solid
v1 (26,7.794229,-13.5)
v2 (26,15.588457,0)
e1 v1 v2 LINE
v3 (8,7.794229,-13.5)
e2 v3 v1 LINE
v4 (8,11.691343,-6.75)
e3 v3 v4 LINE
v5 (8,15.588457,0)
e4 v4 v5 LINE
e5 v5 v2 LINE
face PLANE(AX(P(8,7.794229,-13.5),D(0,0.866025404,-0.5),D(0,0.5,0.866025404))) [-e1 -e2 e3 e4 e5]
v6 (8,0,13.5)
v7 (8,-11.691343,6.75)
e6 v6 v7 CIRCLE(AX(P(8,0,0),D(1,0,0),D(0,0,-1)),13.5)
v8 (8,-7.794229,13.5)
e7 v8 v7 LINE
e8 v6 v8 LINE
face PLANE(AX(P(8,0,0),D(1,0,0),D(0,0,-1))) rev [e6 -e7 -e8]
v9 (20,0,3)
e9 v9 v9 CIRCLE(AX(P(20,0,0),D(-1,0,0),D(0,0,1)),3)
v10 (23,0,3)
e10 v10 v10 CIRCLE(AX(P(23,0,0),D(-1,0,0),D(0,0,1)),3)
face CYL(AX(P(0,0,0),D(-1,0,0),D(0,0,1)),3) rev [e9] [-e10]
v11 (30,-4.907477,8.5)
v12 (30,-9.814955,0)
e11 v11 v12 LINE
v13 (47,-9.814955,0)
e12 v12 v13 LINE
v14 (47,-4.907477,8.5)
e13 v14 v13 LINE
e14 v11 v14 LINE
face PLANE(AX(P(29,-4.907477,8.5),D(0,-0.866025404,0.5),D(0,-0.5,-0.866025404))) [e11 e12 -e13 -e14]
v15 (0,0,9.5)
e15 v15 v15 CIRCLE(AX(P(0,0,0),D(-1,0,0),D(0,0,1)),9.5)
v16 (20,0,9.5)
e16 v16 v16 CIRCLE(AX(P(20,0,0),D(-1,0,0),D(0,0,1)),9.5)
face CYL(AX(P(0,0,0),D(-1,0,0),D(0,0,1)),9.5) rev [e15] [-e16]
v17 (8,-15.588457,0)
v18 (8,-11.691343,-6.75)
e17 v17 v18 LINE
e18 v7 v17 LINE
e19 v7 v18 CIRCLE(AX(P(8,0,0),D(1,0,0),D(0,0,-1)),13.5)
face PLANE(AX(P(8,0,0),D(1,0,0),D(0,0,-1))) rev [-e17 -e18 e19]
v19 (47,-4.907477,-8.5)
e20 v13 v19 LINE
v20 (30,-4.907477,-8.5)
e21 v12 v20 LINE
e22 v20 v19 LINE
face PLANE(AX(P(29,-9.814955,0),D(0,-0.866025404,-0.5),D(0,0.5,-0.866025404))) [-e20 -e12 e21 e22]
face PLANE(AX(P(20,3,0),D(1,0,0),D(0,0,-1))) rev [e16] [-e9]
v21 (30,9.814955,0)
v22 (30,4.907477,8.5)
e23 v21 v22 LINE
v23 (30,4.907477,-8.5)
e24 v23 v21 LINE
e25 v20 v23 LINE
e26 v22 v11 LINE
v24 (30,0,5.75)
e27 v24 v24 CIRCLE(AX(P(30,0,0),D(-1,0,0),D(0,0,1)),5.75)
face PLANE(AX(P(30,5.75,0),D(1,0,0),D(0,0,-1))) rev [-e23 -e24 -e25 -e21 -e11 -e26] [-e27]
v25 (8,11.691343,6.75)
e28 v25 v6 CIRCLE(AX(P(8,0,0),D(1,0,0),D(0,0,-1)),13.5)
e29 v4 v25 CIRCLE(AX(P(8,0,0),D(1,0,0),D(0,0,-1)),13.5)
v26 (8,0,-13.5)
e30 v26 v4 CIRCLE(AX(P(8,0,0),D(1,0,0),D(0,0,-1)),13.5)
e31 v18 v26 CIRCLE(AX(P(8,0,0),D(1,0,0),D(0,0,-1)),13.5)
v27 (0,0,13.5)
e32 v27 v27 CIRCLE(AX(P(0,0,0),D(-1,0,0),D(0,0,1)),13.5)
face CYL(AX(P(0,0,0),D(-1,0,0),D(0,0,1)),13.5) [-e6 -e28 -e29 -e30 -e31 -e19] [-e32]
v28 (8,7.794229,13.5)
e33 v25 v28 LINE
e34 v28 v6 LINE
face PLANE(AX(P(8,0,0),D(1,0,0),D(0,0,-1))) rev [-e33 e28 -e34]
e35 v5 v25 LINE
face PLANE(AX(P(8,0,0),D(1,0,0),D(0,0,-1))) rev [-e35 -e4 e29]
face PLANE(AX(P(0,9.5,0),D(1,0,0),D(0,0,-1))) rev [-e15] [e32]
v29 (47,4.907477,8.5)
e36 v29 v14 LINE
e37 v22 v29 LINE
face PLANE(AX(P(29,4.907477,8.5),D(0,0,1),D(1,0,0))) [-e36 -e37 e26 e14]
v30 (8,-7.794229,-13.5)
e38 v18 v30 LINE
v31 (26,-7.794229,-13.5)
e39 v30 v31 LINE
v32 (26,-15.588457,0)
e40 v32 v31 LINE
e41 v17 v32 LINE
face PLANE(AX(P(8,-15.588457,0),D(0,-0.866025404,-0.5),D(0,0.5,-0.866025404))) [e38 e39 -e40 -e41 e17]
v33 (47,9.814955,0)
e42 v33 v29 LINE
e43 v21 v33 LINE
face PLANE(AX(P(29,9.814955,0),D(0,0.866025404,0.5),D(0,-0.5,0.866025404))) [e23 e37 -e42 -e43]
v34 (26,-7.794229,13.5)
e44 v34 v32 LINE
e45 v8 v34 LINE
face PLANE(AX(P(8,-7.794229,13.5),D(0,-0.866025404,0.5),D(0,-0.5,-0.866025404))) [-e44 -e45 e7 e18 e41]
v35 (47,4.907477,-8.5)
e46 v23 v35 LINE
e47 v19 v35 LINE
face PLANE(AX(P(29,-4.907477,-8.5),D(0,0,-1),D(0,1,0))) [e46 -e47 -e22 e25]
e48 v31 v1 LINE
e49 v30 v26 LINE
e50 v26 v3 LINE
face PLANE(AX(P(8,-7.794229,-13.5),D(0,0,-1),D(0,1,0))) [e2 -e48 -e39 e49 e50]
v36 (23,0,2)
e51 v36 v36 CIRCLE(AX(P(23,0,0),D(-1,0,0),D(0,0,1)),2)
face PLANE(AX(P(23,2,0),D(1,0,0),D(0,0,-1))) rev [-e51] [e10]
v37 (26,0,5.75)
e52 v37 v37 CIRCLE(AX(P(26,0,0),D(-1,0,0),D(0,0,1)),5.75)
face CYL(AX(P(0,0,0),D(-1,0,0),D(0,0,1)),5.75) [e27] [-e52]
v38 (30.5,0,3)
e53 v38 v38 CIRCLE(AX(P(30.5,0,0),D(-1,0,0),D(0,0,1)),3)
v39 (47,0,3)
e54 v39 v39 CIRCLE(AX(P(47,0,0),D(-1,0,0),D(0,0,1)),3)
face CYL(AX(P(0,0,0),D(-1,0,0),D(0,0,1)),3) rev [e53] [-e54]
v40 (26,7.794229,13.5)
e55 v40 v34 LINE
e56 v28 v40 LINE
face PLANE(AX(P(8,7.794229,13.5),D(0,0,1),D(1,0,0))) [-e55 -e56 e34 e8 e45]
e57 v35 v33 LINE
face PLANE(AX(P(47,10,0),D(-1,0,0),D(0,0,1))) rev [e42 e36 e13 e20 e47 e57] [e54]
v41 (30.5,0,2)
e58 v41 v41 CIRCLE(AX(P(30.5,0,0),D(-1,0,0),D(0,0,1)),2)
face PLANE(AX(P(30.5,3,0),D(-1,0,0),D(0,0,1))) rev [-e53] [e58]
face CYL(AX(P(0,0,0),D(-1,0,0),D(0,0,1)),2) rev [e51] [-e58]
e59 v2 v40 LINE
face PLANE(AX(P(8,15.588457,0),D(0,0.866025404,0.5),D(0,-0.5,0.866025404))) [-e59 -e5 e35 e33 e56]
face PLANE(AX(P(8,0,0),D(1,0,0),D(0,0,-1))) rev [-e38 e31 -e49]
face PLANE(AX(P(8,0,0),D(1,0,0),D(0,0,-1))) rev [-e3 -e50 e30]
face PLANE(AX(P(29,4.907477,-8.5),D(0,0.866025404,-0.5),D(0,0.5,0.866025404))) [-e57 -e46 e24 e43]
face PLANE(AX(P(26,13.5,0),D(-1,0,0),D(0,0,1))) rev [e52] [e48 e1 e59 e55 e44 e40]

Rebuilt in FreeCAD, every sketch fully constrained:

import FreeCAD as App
import Part
import Sketcher
from FreeCAD import Vector
Q = App.Units.Quantity


def add_polygon(sketch, points):
    """Adds a closed chain of lines whose ends are joined by coincident constraints."""
    first, n = sketch.GeometryCount, len(points)
    for a, b in zip(points, points[1:] + points[:1]):
        sketch.addGeometry(Part.LineSegment(App.Vector(*a, 0), App.Vector(*b, 0)), False)
    for i in range(n):
        sketch.addConstraint(Sketcher.Constraint("Coincident", first + i, 2, first + (i + 1) % n, 1))

doc = App.newDocument("Part")
params = doc.addObject("Spreadsheet::Sheet", "Params")
for row, (alias, value) in enumerate([
    ("sketch1_width", "20 mm"),
    ("sketch1_width2", "3 mm"),
    ("sketch1_width3", "17 mm"),
    ("sketch1_width4", "4 mm"),
    ("sketch1_width5", "26 mm"),
    ("revolution_angle", "360 deg"),
    ("pocket1_length", "18 mm"),
    ("pad1_length", "18 mm"),
], start=1):
    params.set(f"A{row}", alias)
    params.set(f"B{row}", "=" + value)
    params.setAlias(f"B{row}", alias)

body = doc.addObject("PartDesign::Body", "Body")

# Sketch on XY plane
sketch1 = body.newObject("Sketcher::SketchObject", "Sketch")
sketch1.AttachmentSupport = (doc.getObject("XY_Plane"), [""])
sketch1.MapMode = "FlatFace"
add_polygon(sketch1, [(0, 13.5), (0, 9.5), (20, 9.5), (20, 3), (23, 3), (23, 2), (30.5, 2), (30.5, 3), (47, 3), (47, 10), (30, 10), (30, 5.75), (26, 5.75), (26, 13.5)])  # lines 0-13
sketch1.addConstraint(Sketcher.Constraint("Vertical", 0))
sketch1.addConstraint(Sketcher.Constraint("Horizontal", 1))
sketch1.addConstraint(Sketcher.Constraint("Vertical", 2))
sketch1.addConstraint(Sketcher.Constraint("Horizontal", 3))
sketch1.addConstraint(Sketcher.Constraint("Vertical", 4))
sketch1.addConstraint(Sketcher.Constraint("Horizontal", 5))
sketch1.addConstraint(Sketcher.Constraint("Vertical", 6))
sketch1.addConstraint(Sketcher.Constraint("Horizontal", 7))
sketch1.addConstraint(Sketcher.Constraint("Vertical", 8))
sketch1.addConstraint(Sketcher.Constraint("Horizontal", 9))
sketch1.addConstraint(Sketcher.Constraint("Vertical", 10))
sketch1.addConstraint(Sketcher.Constraint("Horizontal", 11))
sketch1.addConstraint(Sketcher.Constraint("Vertical", 12))
sketch1.addConstraint(Sketcher.Constraint("Horizontal", 13))
sketch1.addConstraint(Sketcher.Constraint("PointOnObject", 0, 2, -2))
sketch1.addConstraint(Sketcher.Constraint("Horizontal", 3, 2, 6, 2))
sketch1.addConstraint(Sketcher.Constraint("Equal", 11, 0))
sketch1.addConstraint(Sketcher.Constraint("DistanceX", 1, 1, 1, 2, 20.0))
sketch1.addConstraint(Sketcher.Constraint("DistanceX", 3, 1, 3, 2, 3.0))
sketch1.addConstraint(Sketcher.Constraint("DistanceX", 9, 2, 9, 1, 17.0))
sketch1.addConstraint(Sketcher.Constraint("DistanceX", 11, 2, 11, 1, 4.0))
sketch1.addConstraint(Sketcher.Constraint("DistanceX", 13, 2, 13, 1, 26.0))
sketch1.addConstraint(Sketcher.Constraint("DistanceY", 4, 2, 4, 1, 1.0))
sketch1.addConstraint(Sketcher.Constraint("DistanceY", 8, 1, 8, 2, 7.0))
sketch1.addConstraint(Sketcher.Constraint("DistanceX", 5, 1, 5, 2, 7.5))
sketch1.addConstraint(Sketcher.Constraint("DistanceY", 2, 2, 2, 1, 6.5))
sketch1.addConstraint(Sketcher.Constraint("DistanceY", -1, 1, 2, 2, 3.0))
sketch1.addConstraint(Sketcher.Constraint("DistanceY", 10, 2, 10, 1, 4.25))
sketch1.setExpression("Constraints[31]", "Params.sketch1_width")
sketch1.setExpression("Constraints[32]", "Params.sketch1_width2")
sketch1.setExpression("Constraints[33]", "Params.sketch1_width3")
sketch1.setExpression("Constraints[34]", "Params.sketch1_width4")
sketch1.setExpression("Constraints[35]", "Params.sketch1_width5")
revolution = body.newObject("PartDesign::Revolution", "Revolution")
revolution.Profile = sketch1
revolution.ReferenceAxis = (sketch1, ["H_Axis"])
revolution.setExpression("Angle", "Params.revolution_angle")

# Sketch on YZ plane
sketch2 = body.newObject("Sketcher::SketchObject", "Sketch001")
sketch2.AttachmentSupport = (doc.getObject("YZ_Plane"), [""])
sketch2.MapMode = "FlatFace"
sketch2.AttachmentOffset = App.Placement(Vector(0, 0, 47), App.Rotation())
sketch2.addGeometry(Part.Circle(Vector(0, 0, 0), Vector(0, 0, 1), 11.379305), False)  # 0
add_polygon(sketch2, [(4.907477, 8.5), (9.814955, 0), (4.907477, -8.5), (-4.907477, -8.5), (-9.814955, 0), (-4.907477, 8.5)])  # lines 1-6
sketch2.addConstraint(Sketcher.Constraint("Horizontal", 3))
sketch2.addConstraint(Sketcher.Constraint("Horizontal", 6))
sketch2.addConstraint(Sketcher.Constraint("Coincident", 0, 3, -1, 1))
sketch2.addConstraint(Sketcher.Constraint("Symmetric", 1, 2, 4, 2, -1, 1))
sketch2.addConstraint(Sketcher.Constraint("Symmetric", 2, 2, 5, 2, -1, 1))
sketch2.addConstraint(Sketcher.Constraint("PointOnObject", 1, 2, -1))
sketch2.addConstraint(Sketcher.Constraint("Parallel", 1, 4))
sketch2.addConstraint(Sketcher.Constraint("Vertical", 3, 2, 5, 2))
sketch2.addConstraint(Sketcher.Constraint("Angle", 1, Q("-60 deg")))
sketch2.addConstraint(Sketcher.Constraint("DistanceY", 3, 2, 5, 2, 17.0))
sketch2.addConstraint(Sketcher.Constraint("Diameter", 0, 22.758611))
sketch2.addConstraint(Sketcher.Constraint("DistanceX", 3, 2, 3, 1, 9.814955))
pocket1 = body.newObject("PartDesign::Pocket", "Pocket")
pocket1.Profile = sketch2
pocket1.setExpression("Length", "Params.pocket1_length")

# Sketch on YZ plane
sketch3 = body.newObject("Sketcher::SketchObject", "Sketch002")
sketch3.AttachmentSupport = (doc.getObject("YZ_Plane"), [""])
sketch3.MapMode = "FlatFace"
sketch3.AttachmentOffset = App.Placement(Vector(0, 0, 26), App.Rotation())
add_polygon(sketch3, [(15.588457, 0), (7.794229, 13.5), (-7.794229, 13.5), (-15.588457, 0), (-7.794229, -13.5), (7.794229, -13.5)])  # lines 0-5
sketch3.addGeometry(Part.Circle(Vector(0, 0, 0), Vector(0, 0, 1), 12.741299), False)  # 6
sketch3.addConstraint(Sketcher.Constraint("Horizontal", 1))
sketch3.addConstraint(Sketcher.Constraint("Horizontal", 4))
sketch3.addConstraint(Sketcher.Constraint("Coincident", 6, 3, -1, 1))
sketch3.addConstraint(Sketcher.Constraint("Symmetric", 0, 2, 3, 2, -1, 1))
sketch3.addConstraint(Sketcher.Constraint("Symmetric", 2, 2, 5, 2, -1, 1))
sketch3.addConstraint(Sketcher.Constraint("PointOnObject", 2, 2, -1))
sketch3.addConstraint(Sketcher.Constraint("Parallel", 2, 5))
sketch3.addConstraint(Sketcher.Constraint("Vertical", 1, 2, 3, 2))
sketch3.addConstraint(Sketcher.Constraint("Angle", 0, Q("120 deg")))
sketch3.addConstraint(Sketcher.Constraint("DistanceY", 3, 2, 1, 2, 27.0))
sketch3.addConstraint(Sketcher.Constraint("Diameter", 6, 25.482599))
sketch3.addConstraint(Sketcher.Constraint("DistanceX", 1, 2, 1, 1, 15.588457))
pad1 = body.newObject("PartDesign::Pad", "Pad")
pad1.Profile = sketch3
pad1.setExpression("Length", "Params.pad1_length")
pad1.Reversed = True

doc.recompute()
